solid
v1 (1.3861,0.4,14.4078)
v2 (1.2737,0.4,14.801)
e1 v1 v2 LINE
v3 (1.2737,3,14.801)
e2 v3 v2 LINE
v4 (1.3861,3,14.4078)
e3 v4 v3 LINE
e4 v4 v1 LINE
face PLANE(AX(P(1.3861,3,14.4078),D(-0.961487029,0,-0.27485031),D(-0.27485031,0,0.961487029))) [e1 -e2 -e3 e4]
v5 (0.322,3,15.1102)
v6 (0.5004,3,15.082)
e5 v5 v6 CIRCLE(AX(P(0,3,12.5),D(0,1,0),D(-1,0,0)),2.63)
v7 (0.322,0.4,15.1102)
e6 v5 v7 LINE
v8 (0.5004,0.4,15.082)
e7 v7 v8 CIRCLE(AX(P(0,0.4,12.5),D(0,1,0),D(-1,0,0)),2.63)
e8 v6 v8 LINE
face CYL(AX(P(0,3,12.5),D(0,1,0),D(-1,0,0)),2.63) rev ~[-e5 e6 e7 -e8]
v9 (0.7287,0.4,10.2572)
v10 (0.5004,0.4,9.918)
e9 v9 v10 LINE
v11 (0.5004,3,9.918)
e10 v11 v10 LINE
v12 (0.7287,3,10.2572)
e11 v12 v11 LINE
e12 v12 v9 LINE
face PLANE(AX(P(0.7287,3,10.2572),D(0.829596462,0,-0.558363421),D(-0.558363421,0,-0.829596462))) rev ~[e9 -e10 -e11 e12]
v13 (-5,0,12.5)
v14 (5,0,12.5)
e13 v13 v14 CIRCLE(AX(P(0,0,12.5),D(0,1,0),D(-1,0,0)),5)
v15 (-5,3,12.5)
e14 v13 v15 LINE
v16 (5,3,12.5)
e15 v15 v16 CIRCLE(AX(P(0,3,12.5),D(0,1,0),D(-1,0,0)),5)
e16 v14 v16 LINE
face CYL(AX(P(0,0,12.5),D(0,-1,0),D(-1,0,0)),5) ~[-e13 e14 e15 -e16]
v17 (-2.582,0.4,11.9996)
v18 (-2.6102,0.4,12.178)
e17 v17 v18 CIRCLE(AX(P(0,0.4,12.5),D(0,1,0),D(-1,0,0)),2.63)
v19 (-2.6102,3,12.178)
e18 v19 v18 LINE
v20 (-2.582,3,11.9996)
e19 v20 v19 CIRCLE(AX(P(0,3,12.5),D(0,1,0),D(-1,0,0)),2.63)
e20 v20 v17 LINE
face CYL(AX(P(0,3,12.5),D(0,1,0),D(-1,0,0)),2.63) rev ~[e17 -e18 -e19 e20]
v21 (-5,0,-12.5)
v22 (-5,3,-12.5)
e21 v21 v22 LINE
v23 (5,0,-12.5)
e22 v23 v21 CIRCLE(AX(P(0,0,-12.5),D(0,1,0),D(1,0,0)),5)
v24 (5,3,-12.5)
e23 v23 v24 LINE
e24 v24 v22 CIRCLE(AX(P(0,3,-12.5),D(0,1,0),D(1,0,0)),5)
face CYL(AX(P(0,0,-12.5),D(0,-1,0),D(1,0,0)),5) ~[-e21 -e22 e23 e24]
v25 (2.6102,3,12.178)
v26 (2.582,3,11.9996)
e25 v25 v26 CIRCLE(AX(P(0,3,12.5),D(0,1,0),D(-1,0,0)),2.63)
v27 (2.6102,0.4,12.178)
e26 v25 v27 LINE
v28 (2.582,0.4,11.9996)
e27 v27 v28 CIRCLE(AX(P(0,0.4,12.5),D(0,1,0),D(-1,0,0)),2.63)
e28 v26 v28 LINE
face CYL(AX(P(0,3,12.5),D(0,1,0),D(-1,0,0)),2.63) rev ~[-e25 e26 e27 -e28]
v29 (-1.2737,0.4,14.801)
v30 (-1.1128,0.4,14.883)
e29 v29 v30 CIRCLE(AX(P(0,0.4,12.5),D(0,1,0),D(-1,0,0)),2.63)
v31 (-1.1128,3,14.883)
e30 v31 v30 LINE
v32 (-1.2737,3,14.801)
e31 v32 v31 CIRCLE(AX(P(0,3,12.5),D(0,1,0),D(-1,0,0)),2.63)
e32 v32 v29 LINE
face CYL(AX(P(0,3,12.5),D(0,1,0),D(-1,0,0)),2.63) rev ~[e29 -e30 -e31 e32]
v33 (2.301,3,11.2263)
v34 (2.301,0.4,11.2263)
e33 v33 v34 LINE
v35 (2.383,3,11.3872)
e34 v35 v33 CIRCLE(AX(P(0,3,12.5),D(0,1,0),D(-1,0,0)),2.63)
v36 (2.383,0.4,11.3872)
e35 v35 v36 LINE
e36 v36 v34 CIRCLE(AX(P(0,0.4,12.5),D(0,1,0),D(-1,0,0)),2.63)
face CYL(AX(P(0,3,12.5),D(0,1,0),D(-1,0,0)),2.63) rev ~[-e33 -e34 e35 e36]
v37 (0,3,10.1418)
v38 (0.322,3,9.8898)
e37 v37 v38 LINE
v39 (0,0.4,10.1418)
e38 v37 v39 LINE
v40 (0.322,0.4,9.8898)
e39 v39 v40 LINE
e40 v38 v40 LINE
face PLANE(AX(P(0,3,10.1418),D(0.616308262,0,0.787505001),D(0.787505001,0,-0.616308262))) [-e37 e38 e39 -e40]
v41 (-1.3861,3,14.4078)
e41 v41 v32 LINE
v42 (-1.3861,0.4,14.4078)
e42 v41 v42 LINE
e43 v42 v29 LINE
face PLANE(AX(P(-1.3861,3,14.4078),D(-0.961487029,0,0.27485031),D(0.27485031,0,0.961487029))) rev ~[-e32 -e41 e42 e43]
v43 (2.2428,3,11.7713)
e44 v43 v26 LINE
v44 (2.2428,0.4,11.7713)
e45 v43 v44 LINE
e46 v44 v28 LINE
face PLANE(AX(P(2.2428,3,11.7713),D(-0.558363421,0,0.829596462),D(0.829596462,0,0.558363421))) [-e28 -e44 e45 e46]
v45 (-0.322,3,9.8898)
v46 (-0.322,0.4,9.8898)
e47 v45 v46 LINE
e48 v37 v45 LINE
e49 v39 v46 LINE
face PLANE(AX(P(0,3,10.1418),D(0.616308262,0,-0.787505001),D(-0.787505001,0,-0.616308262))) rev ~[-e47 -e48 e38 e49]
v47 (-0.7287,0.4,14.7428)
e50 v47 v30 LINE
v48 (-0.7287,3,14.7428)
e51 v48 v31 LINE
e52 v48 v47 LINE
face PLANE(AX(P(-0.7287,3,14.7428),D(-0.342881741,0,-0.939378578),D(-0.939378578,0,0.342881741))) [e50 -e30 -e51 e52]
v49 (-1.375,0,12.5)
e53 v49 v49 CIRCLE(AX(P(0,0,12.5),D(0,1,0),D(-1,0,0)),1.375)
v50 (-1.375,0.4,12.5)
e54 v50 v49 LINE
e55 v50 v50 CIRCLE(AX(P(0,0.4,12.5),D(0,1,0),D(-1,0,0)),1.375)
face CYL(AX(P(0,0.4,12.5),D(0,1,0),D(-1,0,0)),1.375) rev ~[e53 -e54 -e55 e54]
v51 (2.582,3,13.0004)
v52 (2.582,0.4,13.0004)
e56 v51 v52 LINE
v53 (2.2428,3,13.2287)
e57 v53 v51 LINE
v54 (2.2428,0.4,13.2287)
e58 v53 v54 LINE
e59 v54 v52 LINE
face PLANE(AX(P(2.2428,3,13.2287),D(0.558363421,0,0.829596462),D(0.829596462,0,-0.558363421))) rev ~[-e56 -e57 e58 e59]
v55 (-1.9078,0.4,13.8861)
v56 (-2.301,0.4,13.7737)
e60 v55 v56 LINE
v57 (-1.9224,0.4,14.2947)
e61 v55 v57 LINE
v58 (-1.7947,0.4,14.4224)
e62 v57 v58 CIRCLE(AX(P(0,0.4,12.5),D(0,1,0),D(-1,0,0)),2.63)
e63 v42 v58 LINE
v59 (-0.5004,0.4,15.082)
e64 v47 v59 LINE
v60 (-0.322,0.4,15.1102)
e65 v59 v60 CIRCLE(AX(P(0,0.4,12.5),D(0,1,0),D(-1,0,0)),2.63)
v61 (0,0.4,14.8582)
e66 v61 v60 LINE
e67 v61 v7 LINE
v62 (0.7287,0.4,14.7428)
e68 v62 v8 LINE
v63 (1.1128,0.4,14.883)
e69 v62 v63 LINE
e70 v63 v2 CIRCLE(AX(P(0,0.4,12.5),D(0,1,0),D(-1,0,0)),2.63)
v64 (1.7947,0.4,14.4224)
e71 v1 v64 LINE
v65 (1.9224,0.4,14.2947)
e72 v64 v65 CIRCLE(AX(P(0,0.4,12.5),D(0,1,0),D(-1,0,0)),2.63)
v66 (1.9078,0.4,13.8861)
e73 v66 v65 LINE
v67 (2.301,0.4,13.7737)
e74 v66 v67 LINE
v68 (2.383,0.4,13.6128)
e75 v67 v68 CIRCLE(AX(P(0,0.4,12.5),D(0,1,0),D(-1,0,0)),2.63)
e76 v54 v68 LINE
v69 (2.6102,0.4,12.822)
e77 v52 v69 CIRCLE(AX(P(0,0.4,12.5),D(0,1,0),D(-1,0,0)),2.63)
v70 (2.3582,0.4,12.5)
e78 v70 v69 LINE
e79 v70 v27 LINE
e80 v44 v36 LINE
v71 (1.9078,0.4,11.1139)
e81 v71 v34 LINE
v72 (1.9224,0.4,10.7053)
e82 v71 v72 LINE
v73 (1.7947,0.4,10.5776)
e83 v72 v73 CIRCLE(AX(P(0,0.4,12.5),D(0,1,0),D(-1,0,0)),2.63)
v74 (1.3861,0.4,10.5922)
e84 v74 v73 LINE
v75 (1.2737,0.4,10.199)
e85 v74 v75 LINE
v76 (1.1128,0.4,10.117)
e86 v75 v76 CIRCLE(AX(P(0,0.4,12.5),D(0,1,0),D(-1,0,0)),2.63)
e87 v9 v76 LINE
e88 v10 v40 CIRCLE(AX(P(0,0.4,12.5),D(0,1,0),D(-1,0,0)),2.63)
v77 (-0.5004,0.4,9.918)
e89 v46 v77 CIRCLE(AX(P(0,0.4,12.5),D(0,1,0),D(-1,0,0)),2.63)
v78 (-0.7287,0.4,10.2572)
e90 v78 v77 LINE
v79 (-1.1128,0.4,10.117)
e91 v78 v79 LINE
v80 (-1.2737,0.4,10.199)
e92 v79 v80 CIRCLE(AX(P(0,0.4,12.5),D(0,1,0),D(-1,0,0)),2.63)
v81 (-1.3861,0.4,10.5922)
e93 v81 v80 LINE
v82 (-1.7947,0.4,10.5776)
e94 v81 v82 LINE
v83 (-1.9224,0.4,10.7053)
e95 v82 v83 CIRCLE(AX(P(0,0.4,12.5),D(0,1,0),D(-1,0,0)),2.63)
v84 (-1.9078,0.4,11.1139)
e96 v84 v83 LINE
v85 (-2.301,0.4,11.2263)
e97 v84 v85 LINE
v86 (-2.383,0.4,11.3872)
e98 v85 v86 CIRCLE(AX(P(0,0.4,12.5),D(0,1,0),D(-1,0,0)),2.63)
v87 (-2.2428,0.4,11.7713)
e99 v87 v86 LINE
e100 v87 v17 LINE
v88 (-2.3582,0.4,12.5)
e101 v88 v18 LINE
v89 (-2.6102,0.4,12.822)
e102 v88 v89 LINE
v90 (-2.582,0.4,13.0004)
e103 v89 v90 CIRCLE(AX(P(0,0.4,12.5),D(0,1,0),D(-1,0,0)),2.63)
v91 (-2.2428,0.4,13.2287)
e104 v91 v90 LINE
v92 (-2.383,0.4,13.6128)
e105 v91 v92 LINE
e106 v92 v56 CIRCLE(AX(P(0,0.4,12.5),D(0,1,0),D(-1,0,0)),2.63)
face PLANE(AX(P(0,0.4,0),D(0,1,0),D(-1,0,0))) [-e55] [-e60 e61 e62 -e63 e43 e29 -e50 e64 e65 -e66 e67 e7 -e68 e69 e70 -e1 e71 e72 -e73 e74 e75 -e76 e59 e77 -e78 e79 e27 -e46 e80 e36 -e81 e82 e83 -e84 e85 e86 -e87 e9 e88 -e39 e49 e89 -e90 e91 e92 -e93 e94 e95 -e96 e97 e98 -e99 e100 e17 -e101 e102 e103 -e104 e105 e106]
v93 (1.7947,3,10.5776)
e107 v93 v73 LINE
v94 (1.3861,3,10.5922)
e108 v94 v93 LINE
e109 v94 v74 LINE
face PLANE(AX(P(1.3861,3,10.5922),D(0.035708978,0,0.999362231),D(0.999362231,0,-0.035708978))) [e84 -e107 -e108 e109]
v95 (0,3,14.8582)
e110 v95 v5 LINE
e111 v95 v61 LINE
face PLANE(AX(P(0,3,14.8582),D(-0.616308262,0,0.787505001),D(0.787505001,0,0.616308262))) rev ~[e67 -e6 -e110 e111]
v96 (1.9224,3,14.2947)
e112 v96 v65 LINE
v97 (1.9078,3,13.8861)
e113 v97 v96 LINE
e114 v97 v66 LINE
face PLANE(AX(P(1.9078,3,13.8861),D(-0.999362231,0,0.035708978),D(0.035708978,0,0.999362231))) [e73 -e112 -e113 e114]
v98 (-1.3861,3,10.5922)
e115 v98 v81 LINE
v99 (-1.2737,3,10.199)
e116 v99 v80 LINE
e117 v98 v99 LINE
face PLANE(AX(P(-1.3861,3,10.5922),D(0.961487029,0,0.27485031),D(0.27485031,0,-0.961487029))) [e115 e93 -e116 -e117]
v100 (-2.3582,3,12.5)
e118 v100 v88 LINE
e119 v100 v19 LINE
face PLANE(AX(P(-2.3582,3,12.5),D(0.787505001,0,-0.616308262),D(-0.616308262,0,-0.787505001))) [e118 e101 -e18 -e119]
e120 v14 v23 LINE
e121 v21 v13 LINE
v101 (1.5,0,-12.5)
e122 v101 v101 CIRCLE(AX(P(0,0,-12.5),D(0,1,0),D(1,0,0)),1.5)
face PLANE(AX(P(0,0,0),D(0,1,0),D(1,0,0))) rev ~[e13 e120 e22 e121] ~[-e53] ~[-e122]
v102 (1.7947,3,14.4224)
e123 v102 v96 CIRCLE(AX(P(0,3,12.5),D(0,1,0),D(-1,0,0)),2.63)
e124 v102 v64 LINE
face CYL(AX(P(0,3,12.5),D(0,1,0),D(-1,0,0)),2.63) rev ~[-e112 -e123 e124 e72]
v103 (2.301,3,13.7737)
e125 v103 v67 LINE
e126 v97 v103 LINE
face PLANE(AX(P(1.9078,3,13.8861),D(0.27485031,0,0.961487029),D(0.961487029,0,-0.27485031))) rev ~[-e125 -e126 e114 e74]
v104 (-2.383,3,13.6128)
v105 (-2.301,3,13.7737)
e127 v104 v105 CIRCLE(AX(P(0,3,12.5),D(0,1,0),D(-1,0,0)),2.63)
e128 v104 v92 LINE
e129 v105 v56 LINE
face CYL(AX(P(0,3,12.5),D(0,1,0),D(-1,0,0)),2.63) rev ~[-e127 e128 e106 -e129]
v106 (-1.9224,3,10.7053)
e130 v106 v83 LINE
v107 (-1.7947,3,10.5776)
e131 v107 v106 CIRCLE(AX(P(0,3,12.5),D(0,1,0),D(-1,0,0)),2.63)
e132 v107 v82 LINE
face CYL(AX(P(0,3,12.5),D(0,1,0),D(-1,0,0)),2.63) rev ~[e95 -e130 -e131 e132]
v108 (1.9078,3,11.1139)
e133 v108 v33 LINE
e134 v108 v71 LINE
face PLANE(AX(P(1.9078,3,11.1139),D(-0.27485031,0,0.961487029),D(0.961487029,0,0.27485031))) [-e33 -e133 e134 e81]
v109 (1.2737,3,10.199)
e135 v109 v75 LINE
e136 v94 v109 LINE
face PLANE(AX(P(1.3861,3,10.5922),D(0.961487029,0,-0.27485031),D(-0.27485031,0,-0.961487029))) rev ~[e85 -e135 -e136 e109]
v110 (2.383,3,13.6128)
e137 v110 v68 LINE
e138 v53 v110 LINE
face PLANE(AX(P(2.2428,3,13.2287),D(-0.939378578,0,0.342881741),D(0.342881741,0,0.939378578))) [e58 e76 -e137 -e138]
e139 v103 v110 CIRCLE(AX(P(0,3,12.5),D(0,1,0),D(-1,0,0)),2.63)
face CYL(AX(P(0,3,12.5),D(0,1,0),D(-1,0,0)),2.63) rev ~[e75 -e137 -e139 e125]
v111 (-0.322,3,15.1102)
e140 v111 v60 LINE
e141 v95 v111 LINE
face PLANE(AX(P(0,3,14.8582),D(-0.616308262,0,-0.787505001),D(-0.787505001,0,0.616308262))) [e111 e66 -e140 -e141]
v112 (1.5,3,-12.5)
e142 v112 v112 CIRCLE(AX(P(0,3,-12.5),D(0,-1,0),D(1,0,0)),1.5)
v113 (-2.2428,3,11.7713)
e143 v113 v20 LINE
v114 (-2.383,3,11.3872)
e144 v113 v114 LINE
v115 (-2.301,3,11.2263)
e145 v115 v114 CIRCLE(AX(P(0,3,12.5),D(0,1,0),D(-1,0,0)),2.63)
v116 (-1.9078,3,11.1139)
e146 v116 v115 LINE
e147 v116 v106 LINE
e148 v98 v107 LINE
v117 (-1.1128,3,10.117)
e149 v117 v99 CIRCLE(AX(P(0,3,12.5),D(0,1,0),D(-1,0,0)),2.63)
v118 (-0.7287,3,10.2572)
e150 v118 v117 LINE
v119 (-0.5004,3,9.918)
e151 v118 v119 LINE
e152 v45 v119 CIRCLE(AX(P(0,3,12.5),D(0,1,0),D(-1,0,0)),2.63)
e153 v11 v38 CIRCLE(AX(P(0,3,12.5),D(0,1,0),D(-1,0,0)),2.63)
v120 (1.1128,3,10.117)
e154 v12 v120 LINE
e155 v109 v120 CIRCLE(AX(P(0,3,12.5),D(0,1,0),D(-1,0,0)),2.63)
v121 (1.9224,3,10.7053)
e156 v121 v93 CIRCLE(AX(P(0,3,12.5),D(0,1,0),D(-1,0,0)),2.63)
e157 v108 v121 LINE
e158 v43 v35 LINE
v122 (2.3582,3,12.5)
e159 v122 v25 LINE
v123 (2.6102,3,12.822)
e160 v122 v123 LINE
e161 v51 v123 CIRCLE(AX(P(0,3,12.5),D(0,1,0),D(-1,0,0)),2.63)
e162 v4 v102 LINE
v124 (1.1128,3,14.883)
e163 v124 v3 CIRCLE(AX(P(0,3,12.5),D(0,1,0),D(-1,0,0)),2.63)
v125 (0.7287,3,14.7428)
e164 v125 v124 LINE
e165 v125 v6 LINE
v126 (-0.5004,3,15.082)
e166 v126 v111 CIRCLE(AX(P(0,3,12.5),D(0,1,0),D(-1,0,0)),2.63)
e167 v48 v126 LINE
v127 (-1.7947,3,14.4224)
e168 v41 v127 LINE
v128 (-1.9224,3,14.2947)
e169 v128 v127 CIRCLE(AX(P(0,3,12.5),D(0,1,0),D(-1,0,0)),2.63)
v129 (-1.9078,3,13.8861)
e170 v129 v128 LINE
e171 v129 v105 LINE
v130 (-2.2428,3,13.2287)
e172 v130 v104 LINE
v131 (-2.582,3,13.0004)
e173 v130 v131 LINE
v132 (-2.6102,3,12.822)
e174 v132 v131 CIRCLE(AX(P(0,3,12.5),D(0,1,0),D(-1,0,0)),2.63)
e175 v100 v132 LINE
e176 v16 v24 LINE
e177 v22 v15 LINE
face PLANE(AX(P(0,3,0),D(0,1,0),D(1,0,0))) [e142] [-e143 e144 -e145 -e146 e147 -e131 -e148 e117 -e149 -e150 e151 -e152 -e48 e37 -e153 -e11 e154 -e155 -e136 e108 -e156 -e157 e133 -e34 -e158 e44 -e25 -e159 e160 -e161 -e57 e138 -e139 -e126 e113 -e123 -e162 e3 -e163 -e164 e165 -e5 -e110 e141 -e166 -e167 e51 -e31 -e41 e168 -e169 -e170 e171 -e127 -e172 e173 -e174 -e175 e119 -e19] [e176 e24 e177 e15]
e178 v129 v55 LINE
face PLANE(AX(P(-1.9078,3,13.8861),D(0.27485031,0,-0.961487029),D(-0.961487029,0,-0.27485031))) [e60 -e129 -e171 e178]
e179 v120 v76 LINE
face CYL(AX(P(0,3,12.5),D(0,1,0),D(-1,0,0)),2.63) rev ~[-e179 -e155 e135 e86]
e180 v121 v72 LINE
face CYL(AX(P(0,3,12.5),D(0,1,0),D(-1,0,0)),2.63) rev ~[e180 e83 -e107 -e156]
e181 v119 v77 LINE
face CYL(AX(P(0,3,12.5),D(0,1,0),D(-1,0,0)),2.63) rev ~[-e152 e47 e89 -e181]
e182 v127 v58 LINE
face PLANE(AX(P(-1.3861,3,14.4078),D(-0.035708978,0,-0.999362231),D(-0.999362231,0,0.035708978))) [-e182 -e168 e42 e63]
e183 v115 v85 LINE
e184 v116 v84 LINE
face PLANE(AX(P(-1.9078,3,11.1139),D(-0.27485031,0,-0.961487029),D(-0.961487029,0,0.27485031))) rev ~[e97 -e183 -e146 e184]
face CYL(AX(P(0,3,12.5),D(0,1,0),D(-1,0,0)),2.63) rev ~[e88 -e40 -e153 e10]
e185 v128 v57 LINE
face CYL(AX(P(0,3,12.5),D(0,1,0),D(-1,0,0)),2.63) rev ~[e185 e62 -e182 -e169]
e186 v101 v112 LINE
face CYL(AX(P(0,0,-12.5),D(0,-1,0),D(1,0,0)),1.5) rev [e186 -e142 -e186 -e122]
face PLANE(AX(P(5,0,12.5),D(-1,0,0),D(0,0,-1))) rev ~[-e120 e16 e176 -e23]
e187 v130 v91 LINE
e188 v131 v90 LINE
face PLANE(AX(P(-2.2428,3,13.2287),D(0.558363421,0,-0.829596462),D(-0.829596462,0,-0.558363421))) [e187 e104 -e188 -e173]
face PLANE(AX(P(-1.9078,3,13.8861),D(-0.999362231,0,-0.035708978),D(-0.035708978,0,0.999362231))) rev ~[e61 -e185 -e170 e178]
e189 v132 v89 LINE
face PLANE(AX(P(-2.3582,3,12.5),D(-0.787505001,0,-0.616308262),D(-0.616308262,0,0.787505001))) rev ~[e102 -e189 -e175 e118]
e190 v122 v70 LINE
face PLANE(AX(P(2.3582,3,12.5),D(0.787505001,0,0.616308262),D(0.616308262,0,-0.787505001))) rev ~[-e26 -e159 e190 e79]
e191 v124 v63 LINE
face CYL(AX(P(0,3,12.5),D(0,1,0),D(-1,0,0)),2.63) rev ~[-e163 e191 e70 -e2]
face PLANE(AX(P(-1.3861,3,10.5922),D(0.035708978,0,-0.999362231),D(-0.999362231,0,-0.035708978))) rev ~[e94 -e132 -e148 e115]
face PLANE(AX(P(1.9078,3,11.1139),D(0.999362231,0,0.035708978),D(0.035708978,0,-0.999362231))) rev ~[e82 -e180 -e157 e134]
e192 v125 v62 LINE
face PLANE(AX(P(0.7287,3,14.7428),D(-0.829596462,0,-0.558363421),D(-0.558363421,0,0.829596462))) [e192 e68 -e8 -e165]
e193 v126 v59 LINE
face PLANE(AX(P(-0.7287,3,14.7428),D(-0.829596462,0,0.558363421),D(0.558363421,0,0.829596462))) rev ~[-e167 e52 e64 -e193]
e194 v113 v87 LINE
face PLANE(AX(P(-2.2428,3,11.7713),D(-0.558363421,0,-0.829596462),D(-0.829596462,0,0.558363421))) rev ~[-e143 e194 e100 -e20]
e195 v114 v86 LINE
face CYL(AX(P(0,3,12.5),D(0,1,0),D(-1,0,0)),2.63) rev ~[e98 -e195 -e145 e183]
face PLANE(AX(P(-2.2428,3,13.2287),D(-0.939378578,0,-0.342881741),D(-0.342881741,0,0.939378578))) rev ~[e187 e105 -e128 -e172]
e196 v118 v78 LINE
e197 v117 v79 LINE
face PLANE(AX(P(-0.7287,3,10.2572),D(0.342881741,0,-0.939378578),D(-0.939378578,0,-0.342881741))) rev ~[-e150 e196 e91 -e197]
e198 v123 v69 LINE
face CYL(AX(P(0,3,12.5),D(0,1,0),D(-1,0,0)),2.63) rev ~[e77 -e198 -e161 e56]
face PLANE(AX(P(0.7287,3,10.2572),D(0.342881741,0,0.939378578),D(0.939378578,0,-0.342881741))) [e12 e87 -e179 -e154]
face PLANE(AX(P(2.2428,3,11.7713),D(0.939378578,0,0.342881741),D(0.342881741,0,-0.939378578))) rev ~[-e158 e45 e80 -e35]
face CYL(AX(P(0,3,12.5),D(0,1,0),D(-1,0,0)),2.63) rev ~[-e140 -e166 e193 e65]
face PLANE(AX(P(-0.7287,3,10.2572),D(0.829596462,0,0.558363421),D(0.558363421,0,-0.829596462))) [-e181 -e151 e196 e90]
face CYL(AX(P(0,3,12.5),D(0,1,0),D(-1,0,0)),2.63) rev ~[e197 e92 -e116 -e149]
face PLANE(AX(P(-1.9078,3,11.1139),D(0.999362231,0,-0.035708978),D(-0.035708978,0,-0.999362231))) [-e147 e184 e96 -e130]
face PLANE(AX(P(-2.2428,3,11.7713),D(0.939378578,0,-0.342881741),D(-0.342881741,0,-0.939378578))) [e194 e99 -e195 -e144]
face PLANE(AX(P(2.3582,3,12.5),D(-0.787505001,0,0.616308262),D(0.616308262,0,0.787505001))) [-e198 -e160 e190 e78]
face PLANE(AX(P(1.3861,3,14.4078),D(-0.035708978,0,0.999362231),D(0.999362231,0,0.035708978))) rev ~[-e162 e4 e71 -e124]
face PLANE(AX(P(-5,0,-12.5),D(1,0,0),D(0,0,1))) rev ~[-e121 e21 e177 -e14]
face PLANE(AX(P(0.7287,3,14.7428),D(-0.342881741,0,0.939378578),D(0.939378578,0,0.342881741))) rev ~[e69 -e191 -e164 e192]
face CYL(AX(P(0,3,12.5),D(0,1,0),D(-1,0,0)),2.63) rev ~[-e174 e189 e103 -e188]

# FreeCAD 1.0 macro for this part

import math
import FreeCAD as App
import Part
import Sketcher

V = App.Vector
Q = App.Units.Quantity

doc = App.newDocument("Part")
body = doc.addObject("PartDesign::Body", "Body")

# Sketch on XZ plane
sketch1 = body.newObject("Sketcher::SketchObject", "Sketch")
sketch1.AttachmentSupport = (doc.getObject("XZ_Plane"), [""])
sketch1.MapMode = "FlatFace"
sketch1.addGeometry(Part.LineSegment(V(5, 12.5, 0), V(5, -12.5, 0)), False)
sketch1.addGeometry(Part.ArcOfCircle(Part.Circle(V(0, -12.5, 0), V(0, 0, 1), 5), math.radians(180), math.radians(360)), False)
sketch1.addGeometry(Part.LineSegment(V(-5, -12.5, 0), V(-5, 12.5, 0)), False)
sketch1.addGeometry(Part.ArcOfCircle(Part.Circle(V(0, 12.5, 0), V(0, 0, 1), 5), math.radians(0), math.radians(180)), False)
sketch1.addGeometry(Part.Circle(V(0, -12.5, 0), V(0, 0, 1), 1.5), False)
sketch1.addConstraint(Sketcher.Constraint("Tangent", 0, 2, 1, 2))
sketch1.addConstraint(Sketcher.Constraint("Tangent", 1, 1, 2, 1))
sketch1.addConstraint(Sketcher.Constraint("Tangent", 2, 2, 3, 2))
sketch1.addConstraint(Sketcher.Constraint("Tangent", 3, 1, 0, 1))
sketch1.addConstraint(Sketcher.Constraint("Vertical", 0))
sketch1.addConstraint(Sketcher.Constraint("Vertical", 2))
sketch1.addConstraint(Sketcher.Constraint("Coincident", 4, 3, 1, 3))
sketch1.addConstraint(Sketcher.Constraint("Symmetric", 1, 3, 3, 3, -1, 1))
sketch1.addConstraint(Sketcher.Constraint("Diameter", 4, Q("3 mm")))
sketch1.addConstraint(Sketcher.Constraint("Radius", 1, Q("5 mm")))
sketch1.addConstraint(Sketcher.Constraint("DistanceY", 0, 2, 0, 1, Q("25 mm")))
pad1 = body.newObject("PartDesign::Pad", "Pad")
pad1.Profile = sketch1
pad1.Length = 3
pad1.Reversed = True

# Sketch on XZ plane
sketch2 = body.newObject("Sketcher::SketchObject", "Sketch001")
sketch2.AttachmentSupport = (doc.getObject("XZ_Plane"), [""])
sketch2.MapMode = "FlatFace"
sketch2.AttachmentOffset = App.Placement(V(0, 0, -3), App.Rotation())
sketch2.addGeometry(Part.LineSegment(V(-2.3582, 12.5, 0), V(-2.6102, 12.822, 0)), False)
sketch2.addGeometry(Part.ArcOfCircle(Part.Circle(V(0, 12.5, 0), V(0, 0, 1), 2.63), math.radians(169.031863), math.radians(172.967398)), False)
sketch2.addGeometry(Part.LineSegment(V(-2.582, 13.0004, 0), V(-2.2428, 13.2287, 0)), False)
sketch2.addGeometry(Part.LineSegment(V(-2.2428, 13.2287, 0), V(-2.383, 13.6128, 0)), False)
sketch2.addGeometry(Part.ArcOfCircle(Part.Circle(V(0, 12.5, 0), V(0, 0, 1), 2.63), math.radians(151.033633), math.radians(154.968629)), False)
sketch2.addGeometry(Part.LineSegment(V(-2.301, 13.7737, 0), V(-1.9078, 13.8861, 0)), False)
sketch2.addGeometry(Part.LineSegment(V(-1.9078, 13.8861, 0), V(-1.9224, 14.2947, 0)), False)
sketch2.addGeometry(Part.ArcOfCircle(Part.Circle(V(0, 12.5, 0), V(0, 0, 1), 2.63), math.radians(133.032392), math.radians(136.967608)), False)
sketch2.addGeometry(Part.LineSegment(V(-1.7947, 14.4224, 0), V(-1.3861, 14.4078, 0)), False)
sketch2.addGeometry(Part.LineSegment(V(-1.3861, 14.4078, 0), V(-1.2737, 14.801, 0)), False)
sketch2.addGeometry(Part.ArcOfCircle(Part.Circle(V(0, 12.5, 0), V(0, 0, 1), 2.63), math.radians(115.031371), math.radians(118.966367)), False)
sketch2.addGeometry(Part.LineSegment(V(-1.1128, 14.883, 0), V(-0.7287, 14.7428, 0)), False)
sketch2.addGeometry(Part.LineSegment(V(-0.7287, 14.7428, 0), V(-0.5004, 15.082, 0)), False)
sketch2.addGeometry(Part.ArcOfCircle(Part.Circle(V(0, 12.5, 0), V(0, 0, 1), 2.63), math.radians(97.032602), math.radians(100.968137)), False)
sketch2.addGeometry(Part.LineSegment(V(-0.322, 15.1102, 0), V(0, 14.8582, 0)), False)
sketch2.addGeometry(Part.LineSegment(V(0, 14.8582, 0), V(0.322, 15.1102, 0)), False)
sketch2.addGeometry(Part.ArcOfCircle(Part.Circle(V(0, 12.5, 0), V(0, 0, 1), 2.63), math.radians(79.031863), math.radians(82.967398)), False)
sketch2.addGeometry(Part.LineSegment(V(0.5004, 15.082, 0), V(0.7287, 14.7428, 0)), False)
sketch2.addGeometry(Part.LineSegment(V(0.7287, 14.7428, 0), V(1.1128, 14.883, 0)), False)
sketch2.addGeometry(Part.ArcOfCircle(Part.Circle(V(0, 12.5, 0), V(0, 0, 1), 2.63), math.radians(61.033633), math.radians(64.968629)), False)
sketch2.addGeometry(Part.LineSegment(V(1.2737, 14.801, 0), V(1.3861, 14.4078, 0)), False)
sketch2.addGeometry(Part.LineSegment(V(1.3861, 14.4078, 0), V(1.7947, 14.4224, 0)), False)
sketch2.addGeometry(Part.ArcOfCircle(Part.Circle(V(0, 12.5, 0), V(0, 0, 1), 2.63), math.radians(43.032392), math.radians(46.967608)), False)
sketch2.addGeometry(Part.LineSegment(V(1.9224, 14.2947, 0), V(1.9078, 13.8861, 0)), False)
sketch2.addGeometry(Part.LineSegment(V(1.9078, 13.8861, 0), V(2.301, 13.7737, 0)), False)
sketch2.addGeometry(Part.ArcOfCircle(Part.Circle(V(0, 12.5, 0), V(0, 0, 1), 2.63), math.radians(25.031371), math.radians(28.966367)), False)
sketch2.addGeometry(Part.LineSegment(V(2.383, 13.6128, 0), V(2.2428, 13.2287, 0)), False)
sketch2.addGeometry(Part.LineSegment(V(2.2428, 13.2287, 0), V(2.582, 13.0004, 0)), False)
sketch2.addGeometry(Part.ArcOfCircle(Part.Circle(V(0, 12.5, 0), V(0, 0, 1), 2.63), math.radians(7.032602), math.radians(10.968137)), False)
sketch2.addGeometry(Part.LineSegment(V(2.6102, 12.822, 0), V(2.3582, 12.5, 0)), False)
sketch2.addGeometry(Part.LineSegment(V(2.3582, 12.5, 0), V(2.6102, 12.178, 0)), False)
sketch2.addGeometry(Part.ArcOfCircle(Part.Circle(V(0, 12.5, 0), V(0, 0, 1), 2.63), math.radians(-10.968137), math.radians(-7.032602)), False)
sketch2.addGeometry(Part.LineSegment(V(2.582, 11.9996, 0), V(2.2428, 11.7713, 0)), False)
sketch2.addGeometry(Part.LineSegment(V(2.2428, 11.7713, 0), V(2.383, 11.3872, 0)), False)
sketch2.addGeometry(Part.ArcOfCircle(Part.Circle(V(0, 12.5, 0), V(0, 0, 1), 2.63), math.radians(-28.966367), math.radians(-25.031371)), False)
sketch2.addGeometry(Part.LineSegment(V(2.301, 11.2263, 0), V(1.9078, 11.1139, 0)), False)
sketch2.addGeometry(Part.LineSegment(V(1.9078, 11.1139, 0), V(1.9224, 10.7053, 0)), False)
sketch2.addGeometry(Part.ArcOfCircle(Part.Circle(V(0, 12.5, 0), V(0, 0, 1), 2.63), math.radians(-46.967608), math.radians(-43.032392)), False)
sketch2.addGeometry(Part.LineSegment(V(1.7947, 10.5776, 0), V(1.3861, 10.5922, 0)), False)
sketch2.addGeometry(Part.LineSegment(V(1.3861, 10.5922, 0), V(1.2737, 10.199, 0)), False)
sketch2.addGeometry(Part.ArcOfCircle(Part.Circle(V(0, 12.5, 0), V(0, 0, 1), 2.63), math.radians(-64.968629), math.radians(-61.033633)), False)
sketch2.addGeometry(Part.LineSegment(V(1.1128, 10.117, 0), V(0.7287, 10.2572, 0)), False)
sketch2.addGeometry(Part.LineSegment(V(0.7287, 10.2572, 0), V(0.5004, 9.918, 0)), False)
sketch2.addGeometry(Part.ArcOfCircle(Part.Circle(V(0, 12.5, 0), V(0, 0, 1), 2.63), math.radians(-82.967398), math.radians(-79.031863)), False)
sketch2.addGeometry(Part.LineSegment(V(0.322, 9.8898, 0), V(0, 10.1418, 0)), False)
sketch2.addGeometry(Part.LineSegment(V(0, 10.1418, 0), V(-0.322, 9.8898, 0)), False)
sketch2.addGeometry(Part.ArcOfCircle(Part.Circle(V(0, 12.5, 0), V(0, 0, 1), 2.63), math.radians(-100.968137), math.radians(-97.032602)), False)
sketch2.addGeometry(Part.LineSegment(V(-0.5004, 9.918, 0), V(-0.7287, 10.2572, 0)), False)
sketch2.addGeometry(Part.LineSegment(V(-0.7287, 10.2572, 0), V(-1.1128, 10.117, 0)), False)
sketch2.addGeometry(Part.ArcOfCircle(Part.Circle(V(0, 12.5, 0), V(0, 0, 1), 2.63), math.radians(-118.966367), math.radians(-115.031371)), False)
sketch2.addGeometry(Part.LineSegment(V(-1.2737, 10.199, 0), V(-1.3861, 10.5922, 0)), False)
sketch2.addGeometry(Part.LineSegment(V(-1.3861, 10.5922, 0), V(-1.7947, 10.5776, 0)), False)
sketch2.addGeometry(Part.ArcOfCircle(Part.Circle(V(0, 12.5, 0), V(0, 0, 1), 2.63), math.radians(-136.967608), math.radians(-133.032392)), False)
sketch2.addGeometry(Part.LineSegment(V(-1.9224, 10.7053, 0), V(-1.9078, 11.1139, 0)), False)
sketch2.addGeometry(Part.LineSegment(V(-1.9078, 11.1139, 0), V(-2.301, 11.2263, 0)), False)
sketch2.addGeometry(Part.ArcOfCircle(Part.Circle(V(0, 12.5, 0), V(0, 0, 1), 2.63), math.radians(-154.968629), math.radians(-151.033633)), False)
sketch2.addGeometry(Part.LineSegment(V(-2.383, 11.3872, 0), V(-2.2428, 11.7713, 0)), False)
sketch2.addGeometry(Part.LineSegment(V(-2.2428, 11.7713, 0), V(-2.582, 11.9996, 0)), False)
sketch2.addGeometry(Part.ArcOfCircle(Part.Circle(V(0, 12.5, 0), V(0, 0, 1), 2.63), math.radians(-172.967398), math.radians(-169.031863)), False)
sketch2.addGeometry(Part.LineSegment(V(-2.6102, 12.178, 0), V(-2.3582, 12.5, 0)), False)
sketch2.addConstraint(Sketcher.Constraint("Coincident", 0, 2, 1, 2))
sketch2.addConstraint(Sketcher.Constraint("Coincident", 1, 1, 2, 1))
sketch2.addConstraint(Sketcher.Constraint("Coincident", 2, 2, 3, 1))
sketch2.addConstraint(Sketcher.Constraint("Coincident", 3, 2, 4, 2))
sketch2.addConstraint(Sketcher.Constraint("Coincident", 4, 1, 5, 1))
sketch2.addConstraint(Sketcher.Constraint("Coincident", 5, 2, 6, 1))
sketch2.addConstraint(Sketcher.Constraint("Coincident", 6, 2, 7, 2))
sketch2.addConstraint(Sketcher.Constraint("Coincident", 7, 1, 8, 1))
sketch2.addConstraint(Sketcher.Constraint("Coincident", 8, 2, 9, 1))
sketch2.addConstraint(Sketcher.Constraint("Coincident", 9, 2, 10, 2))
sketch2.addConstraint(Sketcher.Constraint("Coincident", 10, 1, 11, 1))
sketch2.addConstraint(Sketcher.Constraint("Coincident", 11, 2, 12, 1))
sketch2.addConstraint(Sketcher.Constraint("Coincident", 12, 2, 13, 2))
sketch2.addConstraint(Sketcher.Constraint("Coincident", 13, 1, 14, 1))
sketch2.addConstraint(Sketcher.Constraint("Coincident", 14, 2, 15, 1))
sketch2.addConstraint(Sketcher.Constraint("Coincident", 15, 2, 16, 2))
sketch2.addConstraint(Sketcher.Constraint("Coincident", 16, 1, 17, 1))
sketch2.addConstraint(Sketcher.Constraint("Coincident", 17, 2, 18, 1))
sketch2.addConstraint(Sketcher.Constraint("Coincident", 18, 2, 19, 2))
sketch2.addConstraint(Sketcher.Constraint("Coincident", 19, 1, 20, 1))
sketch2.addConstraint(Sketcher.Constraint("Coincident", 20, 2, 21, 1))
sketch2.addConstraint(Sketcher.Constraint("Coincident", 21, 2, 22, 2))
sketch2.addConstraint(Sketcher.Constraint("Coincident", 22, 1, 23, 1))
sketch2.addConstraint(Sketcher.Constraint("Coincident", 23, 2, 24, 1))
sketch2.addConstraint(Sketcher.Constraint("Coincident", 24, 2, 25, 2))
sketch2.addConstraint(Sketcher.Constraint("Coincident", 25, 1, 26, 1))
sketch2.addConstraint(Sketcher.Constraint("Coincident", 26, 2, 27, 1))
sketch2.addConstraint(Sketcher.Constraint("Coincident", 27, 2, 28, 2))
sketch2.addConstraint(Sketcher.Constraint("Coincident", 28, 1, 29, 1))
sketch2.addConstraint(Sketcher.Constraint("Coincident", 29, 2, 30, 1))
sketch2.addConstraint(Sketcher.Constraint("Coincident", 30, 2, 31, 2))
sketch2.addConstraint(Sketcher.Constraint("Coincident", 31, 1, 32, 1))
sketch2.addConstraint(Sketcher.Constraint("Coincident", 32, 2, 33, 1))
sketch2.addConstraint(Sketcher.Constraint("Coincident", 33, 2, 34, 2))
sketch2.addConstraint(Sketcher.Constraint("Coincident", 34, 1, 35, 1))
sketch2.addConstraint(Sketcher.Constraint("Coincident", 35, 2, 36, 1))
sketch2.addConstraint(Sketcher.Constraint("Coincident", 36, 2, 37, 2))
sketch2.addConstraint(Sketcher.Constraint("Coincident", 37, 1, 38, 1))
sketch2.addConstraint(Sketcher.Constraint("Coincident", 38, 2, 39, 1))
sketch2.addConstraint(Sketcher.Constraint("Coincident", 39, 2, 40, 2))
sketch2.addConstraint(Sketcher.Constraint("Coincident", 40, 1, 41, 1))
sketch2.addConstraint(Sketcher.Constraint("Coincident", 41, 2, 42, 1))
sketch2.addConstraint(Sketcher.Constraint("Coincident", 42, 2, 43, 2))
sketch2.addConstraint(Sketcher.Constraint("Coincident", 43, 1, 44, 1))
sketch2.addConstraint(Sketcher.Constraint("Coincident", 44, 2, 45, 1))
sketch2.addConstraint(Sketcher.Constraint("Coincident", 45, 2, 46, 2))
sketch2.addConstraint(Sketcher.Constraint("Coincident", 46, 1, 47, 1))
sketch2.addConstraint(Sketcher.Constraint("Coincident", 47, 2, 48, 1))
sketch2.addConstraint(Sketcher.Constraint("Coincident", 48, 2, 49, 2))
sketch2.addConstraint(Sketcher.Constraint("Coincident", 49, 1, 50, 1))
sketch2.addConstraint(Sketcher.Constraint("Coincident", 50, 2, 51, 1))
sketch2.addConstraint(Sketcher.Constraint("Coincident", 51, 2, 52, 2))
sketch2.addConstraint(Sketcher.Constraint("Coincident", 52, 1, 53, 1))
sketch2.addConstraint(Sketcher.Constraint("Coincident", 53, 2, 54, 1))
sketch2.addConstraint(Sketcher.Constraint("Coincident", 54, 2, 55, 2))
sketch2.addConstraint(Sketcher.Constraint("Coincident", 55, 1, 56, 1))
sketch2.addConstraint(Sketcher.Constraint("Coincident", 56, 2, 57, 1))
sketch2.addConstraint(Sketcher.Constraint("Coincident", 57, 2, 58, 2))
sketch2.addConstraint(Sketcher.Constraint("Coincident", 58, 1, 59, 1))
sketch2.addConstraint(Sketcher.Constraint("Coincident", 59, 2, 0, 1))
sketch2.addConstraint(Sketcher.Constraint("Coincident", 4, 3, 1, 3))
sketch2.addConstraint(Sketcher.Constraint("Coincident", 7, 3, 1, 3))
sketch2.addConstraint(Sketcher.Constraint("Coincident", 10, 3, 1, 3))
sketch2.addConstraint(Sketcher.Constraint("Coincident", 13, 3, 1, 3))
sketch2.addConstraint(Sketcher.Constraint("Coincident", 16, 3, 1, 3))
sketch2.addConstraint(Sketcher.Constraint("Coincident", 19, 3, 1, 3))
sketch2.addConstraint(Sketcher.Constraint("Coincident", 22, 3, 1, 3))
sketch2.addConstraint(Sketcher.Constraint("Coincident", 25, 3, 1, 3))
sketch2.addConstraint(Sketcher.Constraint("Coincident", 28, 3, 1, 3))
sketch2.addConstraint(Sketcher.Constraint("Coincident", 31, 3, 1, 3))
sketch2.addConstraint(Sketcher.Constraint("Coincident", 34, 3, 1, 3))
sketch2.addConstraint(Sketcher.Constraint("Coincident", 37, 3, 1, 3))
sketch2.addConstraint(Sketcher.Constraint("Coincident", 40, 3, 1, 3))
sketch2.addConstraint(Sketcher.Constraint("Coincident", 43, 3, 1, 3))
sketch2.addConstraint(Sketcher.Constraint("Coincident", 46, 3, 1, 3))
sketch2.addConstraint(Sketcher.Constraint("Coincident", 49, 3, 1, 3))
sketch2.addConstraint(Sketcher.Constraint("Coincident", 52, 3, 1, 3))
sketch2.addConstraint(Sketcher.Constraint("Coincident", 55, 3, 1, 3))
sketch2.addConstraint(Sketcher.Constraint("Coincident", 58, 3, 1, 3))
sketch2.addConstraint(Sketcher.Constraint("Equal", 1, 4))
sketch2.addConstraint(Sketcher.Constraint("Equal", 4, 7))
sketch2.addConstraint(Sketcher.Constraint("Equal", 7, 10))
sketch2.addConstraint(Sketcher.Constraint("Equal", 10, 13))
sketch2.addConstraint(Sketcher.Constraint("Equal", 13, 16))
sketch2.addConstraint(Sketcher.Constraint("Equal", 16, 19))
sketch2.addConstraint(Sketcher.Constraint("Equal", 19, 22))
sketch2.addConstraint(Sketcher.Constraint("Equal", 22, 25))
sketch2.addConstraint(Sketcher.Constraint("Equal", 25, 28))
sketch2.addConstraint(Sketcher.Constraint("Equal", 28, 31))
sketch2.addConstraint(Sketcher.Constraint("Equal", 31, 34))
sketch2.addConstraint(Sketcher.Constraint("Equal", 34, 37))
sketch2.addConstraint(Sketcher.Constraint("Equal", 37, 40))
sketch2.addConstraint(Sketcher.Constraint("Equal", 40, 43))
sketch2.addConstraint(Sketcher.Constraint("Equal", 43, 46))
sketch2.addConstraint(Sketcher.Constraint("Equal", 46, 49))
sketch2.addConstraint(Sketcher.Constraint("Equal", 49, 52))
sketch2.addConstraint(Sketcher.Constraint("Equal", 52, 55))
sketch2.addConstraint(Sketcher.Constraint("Equal", 55, 58))
sketch2.addConstraint(Sketcher.Constraint("Symmetric", 13, 1, 15, 2, -2))
sketch2.addConstraint(Sketcher.Constraint("Symmetric", 11, 2, 17, 2, -2))
sketch2.addConstraint(Sketcher.Constraint("Symmetric", 8, 2, 20, 2, -2))
sketch2.addConstraint(Sketcher.Constraint("Symmetric", 5, 2, 23, 2, -2))
sketch2.addConstraint(Sketcher.Constraint("Symmetric", 2, 2, 26, 2, -2))
sketch2.addConstraint(Sketcher.Constraint("Symmetric", 41, 2, 47, 2, -2))
sketch2.addConstraint(Sketcher.Constraint("Symmetric", 38, 2, 50, 2, -2))
sketch2.addConstraint(Sketcher.Constraint("Symmetric", 35, 2, 53, 2, -2))
sketch2.addConstraint(Sketcher.Constraint("Symmetric", 32, 2, 56, 2, -2))
sketch2.addConstraint(Sketcher.Constraint("Symmetric", 29, 2, 59, 2, -2))
sketch2.addConstraint(Sketcher.Constraint("PointOnObject", 14, 2, -2))
sketch2.addConstraint(Sketcher.Constraint("PointOnObject", 44, 2, -2))
sketch2.addConstraint(Sketcher.Constraint("Perpendicular", 0, 15))
sketch2.addConstraint(Sketcher.Constraint("Perpendicular", 2, 17))
sketch2.addConstraint(Sketcher.Constraint("Perpendicular", 3, 18))
sketch2.addConstraint(Sketcher.Constraint("Perpendicular", 5, 20))
sketch2.addConstraint(Sketcher.Constraint("Perpendicular", 6, 21))
sketch2.addConstraint(Sketcher.Constraint("Perpendicular", 8, 23))
sketch2.addConstraint(Sketcher.Constraint("Perpendicular", 9, 24))
sketch2.addConstraint(Sketcher.Constraint("Perpendicular", 11, 26))
sketch2.addConstraint(Sketcher.Constraint("Perpendicular", 12, 27))
sketch2.addConstraint(Sketcher.Constraint("Perpendicular", 14, 29))
sketch2.addConstraint(Sketcher.Constraint("Perpendicular", 15, 30))
sketch2.addConstraint(Sketcher.Constraint("Perpendicular", 17, 32))
sketch2.addConstraint(Sketcher.Constraint("Perpendicular", 18, 33))
sketch2.addConstraint(Sketcher.Constraint("Perpendicular", 20, 35))
sketch2.addConstraint(Sketcher.Constraint("Perpendicular", 21, 36))
sketch2.addConstraint(Sketcher.Constraint("Perpendicular", 23, 38))
sketch2.addConstraint(Sketcher.Constraint("Perpendicular", 24, 39))
sketch2.addConstraint(Sketcher.Constraint("Perpendicular", 26, 41))
sketch2.addConstraint(Sketcher.Constraint("Perpendicular", 27, 42))
sketch2.addConstraint(Sketcher.Constraint("Perpendicular", 29, 44))
sketch2.addConstraint(Sketcher.Constraint("Perpendicular", 30, 45))
sketch2.addConstraint(Sketcher.Constraint("Perpendicular", 32, 47))
sketch2.addConstraint(Sketcher.Constraint("Perpendicular", 33, 48))
sketch2.addConstraint(Sketcher.Constraint("Perpendicular", 35, 50))
sketch2.addConstraint(Sketcher.Constraint("Perpendicular", 36, 51))
sketch2.addConstraint(Sketcher.Constraint("Perpendicular", 38, 53))
sketch2.addConstraint(Sketcher.Constraint("Perpendicular", 39, 54))
sketch2.addConstraint(Sketcher.Constraint("Perpendicular", 41, 56))
sketch2.addConstraint(Sketcher.Constraint("Perpendicular", 42, 57))
sketch2.addConstraint(Sketcher.Constraint("Perpendicular", 44, 59))
sketch2.addConstraint(Sketcher.Constraint("Horizontal", 12, 2, 16, 1))
sketch2.addConstraint(Sketcher.Constraint("Horizontal", 10, 1, 18, 2))
sketch2.addConstraint(Sketcher.Constraint("Horizontal", 9, 2, 19, 1))
sketch2.addConstraint(Sketcher.Constraint("Horizontal", 7, 1, 21, 2))
sketch2.addConstraint(Sketcher.Constraint("Horizontal", 58, 3, 29, 2))
sketch2.addConstraint(Sketcher.Constraint("Vertical", 27, 2, 31, 1))
sketch2.addConstraint(Sketcher.Constraint("Vertical", 26, 2, 32, 2))
sketch2.addConstraint(Sketcher.Constraint("Vertical", 24, 2, 34, 1))
sketch2.addConstraint(Sketcher.Constraint("Vertical", 23, 2, 35, 2))
sketch2.addConstraint(Sketcher.Constraint("Vertical", 21, 2, 37, 1))
sketch2.addConstraint(Sketcher.Constraint("Vertical", 20, 2, 38, 2))
sketch2.addConstraint(Sketcher.Constraint("Vertical", 18, 2, 40, 1))
sketch2.addConstraint(Sketcher.Constraint("Vertical", 17, 2, 41, 2))
sketch2.addConstraint(Sketcher.Constraint("Vertical", 15, 2, 43, 1))
sketch2.addConstraint(Sketcher.Constraint("Equal", 0, 2))
sketch2.addConstraint(Sketcher.Constraint("Equal", 2, 3))
sketch2.addConstraint(Sketcher.Constraint("Equal", 3, 5))
sketch2.addConstraint(Sketcher.Constraint("Equal", 5, 6))
sketch2.addConstraint(Sketcher.Constraint("Equal", 6, 8))
sketch2.addConstraint(Sketcher.Constraint("Equal", 8, 9))
sketch2.addConstraint(Sketcher.Constraint("Equal", 9, 11))
sketch2.addConstraint(Sketcher.Constraint("Equal", 11, 12))
sketch2.addConstraint(Sketcher.Constraint("Equal", 12, 14))
sketch2.addConstraint(Sketcher.Constraint("Radius", 1, Q("2.63 mm")))
sketch2.addConstraint(Sketcher.Constraint("DistanceX", 13, 1, -1, 1, Q("0.322 mm")))
sketch2.addConstraint(Sketcher.Constraint("DistanceY", -1, 1, 1, 3, Q("12.5 mm")))
sketch2.addConstraint(Sketcher.Constraint("Distance", 0, Q("0.409 mm")))
sketch2.addConstraint(Sketcher.Constraint("DistanceX", 1, 1, -1, 1, Q("2.582 mm")))
sketch2.addConstraint(Sketcher.Constraint("DistanceX", 3, 2, -1, 1, Q("2.383 mm")))
sketch2.addConstraint(Sketcher.Constraint("DistanceX", 4, 1, -1, 1, Q("2.301 mm")))
sketch2.addConstraint(Sketcher.Constraint("DistanceY", -1, 1, 5, 2, Q("13.886 mm")))
pocket1 = body.newObject("PartDesign::Pocket", "Pocket")
pocket1.Profile = sketch2
pocket1.Length = 2.6
pocket1.Reversed = True

# Sketch on XZ plane
sketch3 = body.newObject("Sketcher::SketchObject", "Sketch002")
sketch3.AttachmentSupport = (doc.getObject("XZ_Plane"), [""])
sketch3.MapMode = "FlatFace"
sketch3.AttachmentOffset = App.Placement(V(0, 0, -0.4), App.Rotation())
sketch3.addGeometry(Part.Circle(V(0, 12.5, 0), V(0, 0, 1), 1.375), False)
sketch3.addConstraint(Sketcher.Constraint("PointOnObject", 0, 3, -2))
sketch3.addConstraint(Sketcher.Constraint("Diameter", 0, Q("2.75 mm")))
sketch3.addConstraint(Sketcher.Constraint("DistanceY", -1, 1, 0, 3, Q("12.5 mm")))
pocket2 = body.newObject("PartDesign::Pocket", "Pocket001")
pocket2.Profile = sketch3
pocket2.Length = 0.5
pocket2.Reversed = True

doc.recompute()
